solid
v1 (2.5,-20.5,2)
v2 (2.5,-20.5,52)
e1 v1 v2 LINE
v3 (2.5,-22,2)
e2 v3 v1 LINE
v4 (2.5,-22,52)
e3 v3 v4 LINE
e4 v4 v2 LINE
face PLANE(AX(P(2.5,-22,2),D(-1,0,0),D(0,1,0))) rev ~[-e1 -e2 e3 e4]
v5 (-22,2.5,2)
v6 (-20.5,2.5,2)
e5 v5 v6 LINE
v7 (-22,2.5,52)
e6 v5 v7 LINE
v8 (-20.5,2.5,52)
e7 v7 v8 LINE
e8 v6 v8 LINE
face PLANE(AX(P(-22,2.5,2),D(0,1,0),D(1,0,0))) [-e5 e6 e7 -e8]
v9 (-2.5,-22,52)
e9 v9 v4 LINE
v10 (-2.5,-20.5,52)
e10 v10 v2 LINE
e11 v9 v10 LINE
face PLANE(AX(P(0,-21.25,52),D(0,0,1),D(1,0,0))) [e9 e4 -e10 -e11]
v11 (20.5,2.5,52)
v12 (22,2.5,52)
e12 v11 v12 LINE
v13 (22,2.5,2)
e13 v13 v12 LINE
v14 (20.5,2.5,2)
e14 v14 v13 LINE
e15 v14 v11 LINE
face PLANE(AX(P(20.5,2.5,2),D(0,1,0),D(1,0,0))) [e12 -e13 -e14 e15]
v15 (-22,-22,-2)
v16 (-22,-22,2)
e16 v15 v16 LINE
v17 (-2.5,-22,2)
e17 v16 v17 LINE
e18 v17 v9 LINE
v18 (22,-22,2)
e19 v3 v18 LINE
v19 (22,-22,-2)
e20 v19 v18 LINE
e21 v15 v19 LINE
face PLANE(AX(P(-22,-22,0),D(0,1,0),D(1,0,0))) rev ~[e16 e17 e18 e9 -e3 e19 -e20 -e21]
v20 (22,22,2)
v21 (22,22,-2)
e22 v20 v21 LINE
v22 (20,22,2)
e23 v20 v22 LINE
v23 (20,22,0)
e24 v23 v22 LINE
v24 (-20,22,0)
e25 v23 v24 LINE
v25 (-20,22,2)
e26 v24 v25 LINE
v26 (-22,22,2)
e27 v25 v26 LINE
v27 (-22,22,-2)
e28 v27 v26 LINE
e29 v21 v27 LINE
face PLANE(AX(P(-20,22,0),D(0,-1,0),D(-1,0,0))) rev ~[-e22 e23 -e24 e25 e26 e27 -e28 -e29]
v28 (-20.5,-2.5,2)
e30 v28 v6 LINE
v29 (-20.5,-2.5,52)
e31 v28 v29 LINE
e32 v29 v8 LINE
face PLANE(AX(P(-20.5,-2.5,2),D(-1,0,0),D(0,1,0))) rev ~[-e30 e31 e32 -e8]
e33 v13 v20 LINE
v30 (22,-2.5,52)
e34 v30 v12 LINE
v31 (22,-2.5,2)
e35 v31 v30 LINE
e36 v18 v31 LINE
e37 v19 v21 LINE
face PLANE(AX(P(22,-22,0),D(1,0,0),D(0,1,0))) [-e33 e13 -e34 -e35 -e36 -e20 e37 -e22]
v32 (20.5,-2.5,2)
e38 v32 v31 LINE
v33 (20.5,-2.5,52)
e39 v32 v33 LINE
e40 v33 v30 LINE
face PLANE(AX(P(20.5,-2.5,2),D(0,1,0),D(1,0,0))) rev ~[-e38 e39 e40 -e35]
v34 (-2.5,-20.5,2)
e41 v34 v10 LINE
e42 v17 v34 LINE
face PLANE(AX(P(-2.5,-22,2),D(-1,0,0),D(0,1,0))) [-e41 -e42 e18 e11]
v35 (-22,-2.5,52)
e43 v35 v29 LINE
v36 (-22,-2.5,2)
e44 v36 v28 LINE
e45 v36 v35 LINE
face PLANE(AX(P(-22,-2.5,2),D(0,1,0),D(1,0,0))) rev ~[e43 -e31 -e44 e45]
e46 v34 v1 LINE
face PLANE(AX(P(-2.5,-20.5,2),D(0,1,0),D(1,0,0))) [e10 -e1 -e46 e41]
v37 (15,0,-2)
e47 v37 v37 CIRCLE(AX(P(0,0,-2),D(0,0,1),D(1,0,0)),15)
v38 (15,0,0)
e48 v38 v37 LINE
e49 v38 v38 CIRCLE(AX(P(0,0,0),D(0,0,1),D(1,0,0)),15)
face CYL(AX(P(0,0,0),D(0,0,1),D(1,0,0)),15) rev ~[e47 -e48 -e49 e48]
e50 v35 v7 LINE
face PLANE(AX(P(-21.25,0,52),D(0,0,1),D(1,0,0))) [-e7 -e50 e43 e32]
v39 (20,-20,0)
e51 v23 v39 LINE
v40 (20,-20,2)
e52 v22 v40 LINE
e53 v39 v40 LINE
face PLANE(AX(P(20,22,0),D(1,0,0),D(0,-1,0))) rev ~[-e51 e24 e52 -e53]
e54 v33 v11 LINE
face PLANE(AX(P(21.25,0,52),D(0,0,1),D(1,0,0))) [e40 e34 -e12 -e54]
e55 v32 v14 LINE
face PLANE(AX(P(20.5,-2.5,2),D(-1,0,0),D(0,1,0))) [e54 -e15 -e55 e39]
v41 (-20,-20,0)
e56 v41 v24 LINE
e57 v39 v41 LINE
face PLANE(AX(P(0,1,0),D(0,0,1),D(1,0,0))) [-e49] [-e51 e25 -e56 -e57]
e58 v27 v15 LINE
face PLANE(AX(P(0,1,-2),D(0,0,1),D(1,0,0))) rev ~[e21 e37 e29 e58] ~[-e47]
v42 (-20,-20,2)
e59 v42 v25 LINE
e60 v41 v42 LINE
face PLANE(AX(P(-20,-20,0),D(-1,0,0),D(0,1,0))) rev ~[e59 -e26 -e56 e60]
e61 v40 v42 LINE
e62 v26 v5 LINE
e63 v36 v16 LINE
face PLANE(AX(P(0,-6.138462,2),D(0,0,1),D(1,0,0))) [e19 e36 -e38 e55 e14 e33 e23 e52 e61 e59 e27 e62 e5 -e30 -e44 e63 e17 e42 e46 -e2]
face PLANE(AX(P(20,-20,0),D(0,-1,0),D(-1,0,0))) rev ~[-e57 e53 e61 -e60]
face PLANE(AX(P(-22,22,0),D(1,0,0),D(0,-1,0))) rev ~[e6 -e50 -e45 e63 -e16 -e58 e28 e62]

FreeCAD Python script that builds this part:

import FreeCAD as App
import Part
import Sketcher
Q = App.Units.Quantity


def add_polygon(sketch, points):
    """Adds a closed chain of lines whose ends are joined by coincident constraints."""
    first, n = sketch.GeometryCount, len(points)
    for a, b in zip(points, points[1:] + points[:1]):
        sketch.addGeometry(Part.LineSegment(App.Vector(*a, 0), App.Vector(*b, 0)), False)
    for i in range(n):
        sketch.addConstraint(Sketcher.Constraint("Coincident", first + i, 2, first + (i + 1) % n, 1))

doc = App.newDocument("Part")
body = doc.addObject("PartDesign::Body", "Body")

# Sketch on XY plane
sketch1 = body.newObject("Sketcher::SketchObject", "Sketch")
sketch1.AttachmentSupport = (doc.getObject("XY_Plane"), [""])
sketch1.MapMode = "FlatFace"
add_polygon(sketch1, [(-22, 22), (-22, -22), (22, -22), (22, 22)])  # lines 0-3
sketch1.addGeometry(Part.Circle(App.Vector(0, 0, 0), App.Vector(0, 0, 1), 15), False)  # 4
sketch1.addConstraint(Sketcher.Constraint("Vertical", 0))
sketch1.addConstraint(Sketcher.Constraint("Horizontal", 1))
sketch1.addConstraint(Sketcher.Constraint("Vertical", 2))
sketch1.addConstraint(Sketcher.Constraint("Horizontal", 3))
sketch1.addConstraint(Sketcher.Constraint("Coincident", 4, 3, -1, 1))
sketch1.addConstraint(Sketcher.Constraint("Symmetric", 0, 2, 2, 2, -1, 1))
sketch1.addConstraint(Sketcher.Constraint("Equal", 3, 0))
sketch1.addConstraint(Sketcher.Constraint("Diameter", 4, Q("30 mm")))
sketch1.addConstraint(Sketcher.Constraint("DistanceX", 1, 1, 1, 2, Q("44 mm")))
pad1 = body.newObject("PartDesign::Pad", "Pad")
pad1.Profile = sketch1
pad1.Length = 2
pad1.Reversed = True

# Sketch on XY plane
sketch2 = body.newObject("Sketcher::SketchObject", "Sketch001")
sketch2.AttachmentSupport = (doc.getObject("XY_Plane"), [""])
sketch2.MapMode = "FlatFace"
add_polygon(sketch2, [(-20, 22), (-22, 22), (-22, -22), (22, -22), (22, 22), (20, 22), (20, -20), (-20, -20)])  # lines 0-7
sketch2.addConstraint(Sketcher.Constraint("Horizontal", 0))
sketch2.addConstraint(Sketcher.Constraint("Vertical", 1))
sketch2.addConstraint(Sketcher.Constraint("Horizontal", 2))
sketch2.addConstraint(Sketcher.Constraint("Vertical", 3))
sketch2.addConstraint(Sketcher.Constraint("Horizontal", 4))
sketch2.addConstraint(Sketcher.Constraint("Vertical", 5))
sketch2.addConstraint(Sketcher.Constraint("Horizontal", 6))
sketch2.addConstraint(Sketcher.Constraint("Vertical", 7))
sketch2.addConstraint(Sketcher.Constraint("Symmetric", 0, 2, 2, 2, -1, 1))
sketch2.addConstraint(Sketcher.Constraint("Symmetric", 4, 2, 7, 2, -2))
sketch2.addConstraint(Sketcher.Constraint("Equal", 2, 1))
sketch2.addConstraint(Sketcher.Constraint("DistanceX", 0, 2, 0, 1, Q("2 mm")))
sketch2.addConstraint(Sketcher.Constraint("DistanceX", 2, 1, 2, 2, Q("44 mm")))
sketch2.addConstraint(Sketcher.Constraint("DistanceY", 5, 2, 5, 1, Q("42 mm")))
pad2 = body.newObject("PartDesign::Pad", "Pad001")
pad2.Profile = sketch2
pad2.Length = 2

# Sketch on XY plane
sketch3 = body.newObject("Sketcher::SketchObject", "Sketch002")
sketch3.AttachmentSupport = (doc.getObject("XY_Plane"), [""])
sketch3.MapMode = "FlatFace"
sketch3.AttachmentOffset = App.Placement(App.Vector(0, 0, 2), App.Rotation())
add_polygon(sketch3, [(-22, 2.5), (-22, -2.5), (-20.5, -2.5), (-20.5, 2.5)])  # lines 0-3
add_polygon(sketch3, [(-2.5, -20.5), (-2.5, -22), (2.5, -22), (2.5, -20.5)])  # lines 4-7
add_polygon(sketch3, [(20.5, 2.5), (20.5, -2.5), (22, -2.5), (22, 2.5)])  # lines 8-11
sketch3.addConstraint(Sketcher.Constraint("Vertical", 0))
sketch3.addConstraint(Sketcher.Constraint("Horizontal", 1))
sketch3.addConstraint(Sketcher.Constraint("Vertical", 2))
sketch3.addConstraint(Sketcher.Constraint("Horizontal", 3))
sketch3.addConstraint(Sketcher.Constraint("Vertical", 4))
sketch3.addConstraint(Sketcher.Constraint("Horizontal", 5))
sketch3.addConstraint(Sketcher.Constraint("Vertical", 6))
sketch3.addConstraint(Sketcher.Constraint("Horizontal", 7))
sketch3.addConstraint(Sketcher.Constraint("Vertical", 8))
sketch3.addConstraint(Sketcher.Constraint("Horizontal", 9))
sketch3.addConstraint(Sketcher.Constraint("Vertical", 10))
sketch3.addConstraint(Sketcher.Constraint("Horizontal", 11))
sketch3.addConstraint(Sketcher.Constraint("Symmetric", 2, 2, 8, 2, -1, 1))
sketch3.addConstraint(Sketcher.Constraint("Symmetric", 0, 2, 10, 2, -1, 1))
sketch3.addConstraint(Sketcher.Constraint("Horizontal", 1, 2, 8, 2))
sketch3.addConstraint(Sketcher.Constraint("Equal", 7, 0))
sketch3.addConstraint(Sketcher.Constraint("Equal", 11, 4))
sketch3.addConstraint(Sketcher.Constraint("DistanceX", 5, 1, 5, 2, Q("5 mm")))
sketch3.addConstraint(Sketcher.Constraint("DistanceX", 1, 1, 1, 2, Q("1.5 mm")))
sketch3.addConstraint(Sketcher.Constraint("DistanceX", 0, 2, -1, 1, Q("22 mm")))
sketch3.addConstraint(Sketcher.Constraint("DistanceY", 4, 2, -1, 1, Q("22 mm")))
sketch3.addConstraint(Sketcher.Constraint("DistanceX", 1, 2, 4, 2, Q("18 mm")))
pad3 = body.newObject("PartDesign::Pad", "Pad002")
pad3.Profile = sketch3
pad3.Length = 50

doc.recompute()
